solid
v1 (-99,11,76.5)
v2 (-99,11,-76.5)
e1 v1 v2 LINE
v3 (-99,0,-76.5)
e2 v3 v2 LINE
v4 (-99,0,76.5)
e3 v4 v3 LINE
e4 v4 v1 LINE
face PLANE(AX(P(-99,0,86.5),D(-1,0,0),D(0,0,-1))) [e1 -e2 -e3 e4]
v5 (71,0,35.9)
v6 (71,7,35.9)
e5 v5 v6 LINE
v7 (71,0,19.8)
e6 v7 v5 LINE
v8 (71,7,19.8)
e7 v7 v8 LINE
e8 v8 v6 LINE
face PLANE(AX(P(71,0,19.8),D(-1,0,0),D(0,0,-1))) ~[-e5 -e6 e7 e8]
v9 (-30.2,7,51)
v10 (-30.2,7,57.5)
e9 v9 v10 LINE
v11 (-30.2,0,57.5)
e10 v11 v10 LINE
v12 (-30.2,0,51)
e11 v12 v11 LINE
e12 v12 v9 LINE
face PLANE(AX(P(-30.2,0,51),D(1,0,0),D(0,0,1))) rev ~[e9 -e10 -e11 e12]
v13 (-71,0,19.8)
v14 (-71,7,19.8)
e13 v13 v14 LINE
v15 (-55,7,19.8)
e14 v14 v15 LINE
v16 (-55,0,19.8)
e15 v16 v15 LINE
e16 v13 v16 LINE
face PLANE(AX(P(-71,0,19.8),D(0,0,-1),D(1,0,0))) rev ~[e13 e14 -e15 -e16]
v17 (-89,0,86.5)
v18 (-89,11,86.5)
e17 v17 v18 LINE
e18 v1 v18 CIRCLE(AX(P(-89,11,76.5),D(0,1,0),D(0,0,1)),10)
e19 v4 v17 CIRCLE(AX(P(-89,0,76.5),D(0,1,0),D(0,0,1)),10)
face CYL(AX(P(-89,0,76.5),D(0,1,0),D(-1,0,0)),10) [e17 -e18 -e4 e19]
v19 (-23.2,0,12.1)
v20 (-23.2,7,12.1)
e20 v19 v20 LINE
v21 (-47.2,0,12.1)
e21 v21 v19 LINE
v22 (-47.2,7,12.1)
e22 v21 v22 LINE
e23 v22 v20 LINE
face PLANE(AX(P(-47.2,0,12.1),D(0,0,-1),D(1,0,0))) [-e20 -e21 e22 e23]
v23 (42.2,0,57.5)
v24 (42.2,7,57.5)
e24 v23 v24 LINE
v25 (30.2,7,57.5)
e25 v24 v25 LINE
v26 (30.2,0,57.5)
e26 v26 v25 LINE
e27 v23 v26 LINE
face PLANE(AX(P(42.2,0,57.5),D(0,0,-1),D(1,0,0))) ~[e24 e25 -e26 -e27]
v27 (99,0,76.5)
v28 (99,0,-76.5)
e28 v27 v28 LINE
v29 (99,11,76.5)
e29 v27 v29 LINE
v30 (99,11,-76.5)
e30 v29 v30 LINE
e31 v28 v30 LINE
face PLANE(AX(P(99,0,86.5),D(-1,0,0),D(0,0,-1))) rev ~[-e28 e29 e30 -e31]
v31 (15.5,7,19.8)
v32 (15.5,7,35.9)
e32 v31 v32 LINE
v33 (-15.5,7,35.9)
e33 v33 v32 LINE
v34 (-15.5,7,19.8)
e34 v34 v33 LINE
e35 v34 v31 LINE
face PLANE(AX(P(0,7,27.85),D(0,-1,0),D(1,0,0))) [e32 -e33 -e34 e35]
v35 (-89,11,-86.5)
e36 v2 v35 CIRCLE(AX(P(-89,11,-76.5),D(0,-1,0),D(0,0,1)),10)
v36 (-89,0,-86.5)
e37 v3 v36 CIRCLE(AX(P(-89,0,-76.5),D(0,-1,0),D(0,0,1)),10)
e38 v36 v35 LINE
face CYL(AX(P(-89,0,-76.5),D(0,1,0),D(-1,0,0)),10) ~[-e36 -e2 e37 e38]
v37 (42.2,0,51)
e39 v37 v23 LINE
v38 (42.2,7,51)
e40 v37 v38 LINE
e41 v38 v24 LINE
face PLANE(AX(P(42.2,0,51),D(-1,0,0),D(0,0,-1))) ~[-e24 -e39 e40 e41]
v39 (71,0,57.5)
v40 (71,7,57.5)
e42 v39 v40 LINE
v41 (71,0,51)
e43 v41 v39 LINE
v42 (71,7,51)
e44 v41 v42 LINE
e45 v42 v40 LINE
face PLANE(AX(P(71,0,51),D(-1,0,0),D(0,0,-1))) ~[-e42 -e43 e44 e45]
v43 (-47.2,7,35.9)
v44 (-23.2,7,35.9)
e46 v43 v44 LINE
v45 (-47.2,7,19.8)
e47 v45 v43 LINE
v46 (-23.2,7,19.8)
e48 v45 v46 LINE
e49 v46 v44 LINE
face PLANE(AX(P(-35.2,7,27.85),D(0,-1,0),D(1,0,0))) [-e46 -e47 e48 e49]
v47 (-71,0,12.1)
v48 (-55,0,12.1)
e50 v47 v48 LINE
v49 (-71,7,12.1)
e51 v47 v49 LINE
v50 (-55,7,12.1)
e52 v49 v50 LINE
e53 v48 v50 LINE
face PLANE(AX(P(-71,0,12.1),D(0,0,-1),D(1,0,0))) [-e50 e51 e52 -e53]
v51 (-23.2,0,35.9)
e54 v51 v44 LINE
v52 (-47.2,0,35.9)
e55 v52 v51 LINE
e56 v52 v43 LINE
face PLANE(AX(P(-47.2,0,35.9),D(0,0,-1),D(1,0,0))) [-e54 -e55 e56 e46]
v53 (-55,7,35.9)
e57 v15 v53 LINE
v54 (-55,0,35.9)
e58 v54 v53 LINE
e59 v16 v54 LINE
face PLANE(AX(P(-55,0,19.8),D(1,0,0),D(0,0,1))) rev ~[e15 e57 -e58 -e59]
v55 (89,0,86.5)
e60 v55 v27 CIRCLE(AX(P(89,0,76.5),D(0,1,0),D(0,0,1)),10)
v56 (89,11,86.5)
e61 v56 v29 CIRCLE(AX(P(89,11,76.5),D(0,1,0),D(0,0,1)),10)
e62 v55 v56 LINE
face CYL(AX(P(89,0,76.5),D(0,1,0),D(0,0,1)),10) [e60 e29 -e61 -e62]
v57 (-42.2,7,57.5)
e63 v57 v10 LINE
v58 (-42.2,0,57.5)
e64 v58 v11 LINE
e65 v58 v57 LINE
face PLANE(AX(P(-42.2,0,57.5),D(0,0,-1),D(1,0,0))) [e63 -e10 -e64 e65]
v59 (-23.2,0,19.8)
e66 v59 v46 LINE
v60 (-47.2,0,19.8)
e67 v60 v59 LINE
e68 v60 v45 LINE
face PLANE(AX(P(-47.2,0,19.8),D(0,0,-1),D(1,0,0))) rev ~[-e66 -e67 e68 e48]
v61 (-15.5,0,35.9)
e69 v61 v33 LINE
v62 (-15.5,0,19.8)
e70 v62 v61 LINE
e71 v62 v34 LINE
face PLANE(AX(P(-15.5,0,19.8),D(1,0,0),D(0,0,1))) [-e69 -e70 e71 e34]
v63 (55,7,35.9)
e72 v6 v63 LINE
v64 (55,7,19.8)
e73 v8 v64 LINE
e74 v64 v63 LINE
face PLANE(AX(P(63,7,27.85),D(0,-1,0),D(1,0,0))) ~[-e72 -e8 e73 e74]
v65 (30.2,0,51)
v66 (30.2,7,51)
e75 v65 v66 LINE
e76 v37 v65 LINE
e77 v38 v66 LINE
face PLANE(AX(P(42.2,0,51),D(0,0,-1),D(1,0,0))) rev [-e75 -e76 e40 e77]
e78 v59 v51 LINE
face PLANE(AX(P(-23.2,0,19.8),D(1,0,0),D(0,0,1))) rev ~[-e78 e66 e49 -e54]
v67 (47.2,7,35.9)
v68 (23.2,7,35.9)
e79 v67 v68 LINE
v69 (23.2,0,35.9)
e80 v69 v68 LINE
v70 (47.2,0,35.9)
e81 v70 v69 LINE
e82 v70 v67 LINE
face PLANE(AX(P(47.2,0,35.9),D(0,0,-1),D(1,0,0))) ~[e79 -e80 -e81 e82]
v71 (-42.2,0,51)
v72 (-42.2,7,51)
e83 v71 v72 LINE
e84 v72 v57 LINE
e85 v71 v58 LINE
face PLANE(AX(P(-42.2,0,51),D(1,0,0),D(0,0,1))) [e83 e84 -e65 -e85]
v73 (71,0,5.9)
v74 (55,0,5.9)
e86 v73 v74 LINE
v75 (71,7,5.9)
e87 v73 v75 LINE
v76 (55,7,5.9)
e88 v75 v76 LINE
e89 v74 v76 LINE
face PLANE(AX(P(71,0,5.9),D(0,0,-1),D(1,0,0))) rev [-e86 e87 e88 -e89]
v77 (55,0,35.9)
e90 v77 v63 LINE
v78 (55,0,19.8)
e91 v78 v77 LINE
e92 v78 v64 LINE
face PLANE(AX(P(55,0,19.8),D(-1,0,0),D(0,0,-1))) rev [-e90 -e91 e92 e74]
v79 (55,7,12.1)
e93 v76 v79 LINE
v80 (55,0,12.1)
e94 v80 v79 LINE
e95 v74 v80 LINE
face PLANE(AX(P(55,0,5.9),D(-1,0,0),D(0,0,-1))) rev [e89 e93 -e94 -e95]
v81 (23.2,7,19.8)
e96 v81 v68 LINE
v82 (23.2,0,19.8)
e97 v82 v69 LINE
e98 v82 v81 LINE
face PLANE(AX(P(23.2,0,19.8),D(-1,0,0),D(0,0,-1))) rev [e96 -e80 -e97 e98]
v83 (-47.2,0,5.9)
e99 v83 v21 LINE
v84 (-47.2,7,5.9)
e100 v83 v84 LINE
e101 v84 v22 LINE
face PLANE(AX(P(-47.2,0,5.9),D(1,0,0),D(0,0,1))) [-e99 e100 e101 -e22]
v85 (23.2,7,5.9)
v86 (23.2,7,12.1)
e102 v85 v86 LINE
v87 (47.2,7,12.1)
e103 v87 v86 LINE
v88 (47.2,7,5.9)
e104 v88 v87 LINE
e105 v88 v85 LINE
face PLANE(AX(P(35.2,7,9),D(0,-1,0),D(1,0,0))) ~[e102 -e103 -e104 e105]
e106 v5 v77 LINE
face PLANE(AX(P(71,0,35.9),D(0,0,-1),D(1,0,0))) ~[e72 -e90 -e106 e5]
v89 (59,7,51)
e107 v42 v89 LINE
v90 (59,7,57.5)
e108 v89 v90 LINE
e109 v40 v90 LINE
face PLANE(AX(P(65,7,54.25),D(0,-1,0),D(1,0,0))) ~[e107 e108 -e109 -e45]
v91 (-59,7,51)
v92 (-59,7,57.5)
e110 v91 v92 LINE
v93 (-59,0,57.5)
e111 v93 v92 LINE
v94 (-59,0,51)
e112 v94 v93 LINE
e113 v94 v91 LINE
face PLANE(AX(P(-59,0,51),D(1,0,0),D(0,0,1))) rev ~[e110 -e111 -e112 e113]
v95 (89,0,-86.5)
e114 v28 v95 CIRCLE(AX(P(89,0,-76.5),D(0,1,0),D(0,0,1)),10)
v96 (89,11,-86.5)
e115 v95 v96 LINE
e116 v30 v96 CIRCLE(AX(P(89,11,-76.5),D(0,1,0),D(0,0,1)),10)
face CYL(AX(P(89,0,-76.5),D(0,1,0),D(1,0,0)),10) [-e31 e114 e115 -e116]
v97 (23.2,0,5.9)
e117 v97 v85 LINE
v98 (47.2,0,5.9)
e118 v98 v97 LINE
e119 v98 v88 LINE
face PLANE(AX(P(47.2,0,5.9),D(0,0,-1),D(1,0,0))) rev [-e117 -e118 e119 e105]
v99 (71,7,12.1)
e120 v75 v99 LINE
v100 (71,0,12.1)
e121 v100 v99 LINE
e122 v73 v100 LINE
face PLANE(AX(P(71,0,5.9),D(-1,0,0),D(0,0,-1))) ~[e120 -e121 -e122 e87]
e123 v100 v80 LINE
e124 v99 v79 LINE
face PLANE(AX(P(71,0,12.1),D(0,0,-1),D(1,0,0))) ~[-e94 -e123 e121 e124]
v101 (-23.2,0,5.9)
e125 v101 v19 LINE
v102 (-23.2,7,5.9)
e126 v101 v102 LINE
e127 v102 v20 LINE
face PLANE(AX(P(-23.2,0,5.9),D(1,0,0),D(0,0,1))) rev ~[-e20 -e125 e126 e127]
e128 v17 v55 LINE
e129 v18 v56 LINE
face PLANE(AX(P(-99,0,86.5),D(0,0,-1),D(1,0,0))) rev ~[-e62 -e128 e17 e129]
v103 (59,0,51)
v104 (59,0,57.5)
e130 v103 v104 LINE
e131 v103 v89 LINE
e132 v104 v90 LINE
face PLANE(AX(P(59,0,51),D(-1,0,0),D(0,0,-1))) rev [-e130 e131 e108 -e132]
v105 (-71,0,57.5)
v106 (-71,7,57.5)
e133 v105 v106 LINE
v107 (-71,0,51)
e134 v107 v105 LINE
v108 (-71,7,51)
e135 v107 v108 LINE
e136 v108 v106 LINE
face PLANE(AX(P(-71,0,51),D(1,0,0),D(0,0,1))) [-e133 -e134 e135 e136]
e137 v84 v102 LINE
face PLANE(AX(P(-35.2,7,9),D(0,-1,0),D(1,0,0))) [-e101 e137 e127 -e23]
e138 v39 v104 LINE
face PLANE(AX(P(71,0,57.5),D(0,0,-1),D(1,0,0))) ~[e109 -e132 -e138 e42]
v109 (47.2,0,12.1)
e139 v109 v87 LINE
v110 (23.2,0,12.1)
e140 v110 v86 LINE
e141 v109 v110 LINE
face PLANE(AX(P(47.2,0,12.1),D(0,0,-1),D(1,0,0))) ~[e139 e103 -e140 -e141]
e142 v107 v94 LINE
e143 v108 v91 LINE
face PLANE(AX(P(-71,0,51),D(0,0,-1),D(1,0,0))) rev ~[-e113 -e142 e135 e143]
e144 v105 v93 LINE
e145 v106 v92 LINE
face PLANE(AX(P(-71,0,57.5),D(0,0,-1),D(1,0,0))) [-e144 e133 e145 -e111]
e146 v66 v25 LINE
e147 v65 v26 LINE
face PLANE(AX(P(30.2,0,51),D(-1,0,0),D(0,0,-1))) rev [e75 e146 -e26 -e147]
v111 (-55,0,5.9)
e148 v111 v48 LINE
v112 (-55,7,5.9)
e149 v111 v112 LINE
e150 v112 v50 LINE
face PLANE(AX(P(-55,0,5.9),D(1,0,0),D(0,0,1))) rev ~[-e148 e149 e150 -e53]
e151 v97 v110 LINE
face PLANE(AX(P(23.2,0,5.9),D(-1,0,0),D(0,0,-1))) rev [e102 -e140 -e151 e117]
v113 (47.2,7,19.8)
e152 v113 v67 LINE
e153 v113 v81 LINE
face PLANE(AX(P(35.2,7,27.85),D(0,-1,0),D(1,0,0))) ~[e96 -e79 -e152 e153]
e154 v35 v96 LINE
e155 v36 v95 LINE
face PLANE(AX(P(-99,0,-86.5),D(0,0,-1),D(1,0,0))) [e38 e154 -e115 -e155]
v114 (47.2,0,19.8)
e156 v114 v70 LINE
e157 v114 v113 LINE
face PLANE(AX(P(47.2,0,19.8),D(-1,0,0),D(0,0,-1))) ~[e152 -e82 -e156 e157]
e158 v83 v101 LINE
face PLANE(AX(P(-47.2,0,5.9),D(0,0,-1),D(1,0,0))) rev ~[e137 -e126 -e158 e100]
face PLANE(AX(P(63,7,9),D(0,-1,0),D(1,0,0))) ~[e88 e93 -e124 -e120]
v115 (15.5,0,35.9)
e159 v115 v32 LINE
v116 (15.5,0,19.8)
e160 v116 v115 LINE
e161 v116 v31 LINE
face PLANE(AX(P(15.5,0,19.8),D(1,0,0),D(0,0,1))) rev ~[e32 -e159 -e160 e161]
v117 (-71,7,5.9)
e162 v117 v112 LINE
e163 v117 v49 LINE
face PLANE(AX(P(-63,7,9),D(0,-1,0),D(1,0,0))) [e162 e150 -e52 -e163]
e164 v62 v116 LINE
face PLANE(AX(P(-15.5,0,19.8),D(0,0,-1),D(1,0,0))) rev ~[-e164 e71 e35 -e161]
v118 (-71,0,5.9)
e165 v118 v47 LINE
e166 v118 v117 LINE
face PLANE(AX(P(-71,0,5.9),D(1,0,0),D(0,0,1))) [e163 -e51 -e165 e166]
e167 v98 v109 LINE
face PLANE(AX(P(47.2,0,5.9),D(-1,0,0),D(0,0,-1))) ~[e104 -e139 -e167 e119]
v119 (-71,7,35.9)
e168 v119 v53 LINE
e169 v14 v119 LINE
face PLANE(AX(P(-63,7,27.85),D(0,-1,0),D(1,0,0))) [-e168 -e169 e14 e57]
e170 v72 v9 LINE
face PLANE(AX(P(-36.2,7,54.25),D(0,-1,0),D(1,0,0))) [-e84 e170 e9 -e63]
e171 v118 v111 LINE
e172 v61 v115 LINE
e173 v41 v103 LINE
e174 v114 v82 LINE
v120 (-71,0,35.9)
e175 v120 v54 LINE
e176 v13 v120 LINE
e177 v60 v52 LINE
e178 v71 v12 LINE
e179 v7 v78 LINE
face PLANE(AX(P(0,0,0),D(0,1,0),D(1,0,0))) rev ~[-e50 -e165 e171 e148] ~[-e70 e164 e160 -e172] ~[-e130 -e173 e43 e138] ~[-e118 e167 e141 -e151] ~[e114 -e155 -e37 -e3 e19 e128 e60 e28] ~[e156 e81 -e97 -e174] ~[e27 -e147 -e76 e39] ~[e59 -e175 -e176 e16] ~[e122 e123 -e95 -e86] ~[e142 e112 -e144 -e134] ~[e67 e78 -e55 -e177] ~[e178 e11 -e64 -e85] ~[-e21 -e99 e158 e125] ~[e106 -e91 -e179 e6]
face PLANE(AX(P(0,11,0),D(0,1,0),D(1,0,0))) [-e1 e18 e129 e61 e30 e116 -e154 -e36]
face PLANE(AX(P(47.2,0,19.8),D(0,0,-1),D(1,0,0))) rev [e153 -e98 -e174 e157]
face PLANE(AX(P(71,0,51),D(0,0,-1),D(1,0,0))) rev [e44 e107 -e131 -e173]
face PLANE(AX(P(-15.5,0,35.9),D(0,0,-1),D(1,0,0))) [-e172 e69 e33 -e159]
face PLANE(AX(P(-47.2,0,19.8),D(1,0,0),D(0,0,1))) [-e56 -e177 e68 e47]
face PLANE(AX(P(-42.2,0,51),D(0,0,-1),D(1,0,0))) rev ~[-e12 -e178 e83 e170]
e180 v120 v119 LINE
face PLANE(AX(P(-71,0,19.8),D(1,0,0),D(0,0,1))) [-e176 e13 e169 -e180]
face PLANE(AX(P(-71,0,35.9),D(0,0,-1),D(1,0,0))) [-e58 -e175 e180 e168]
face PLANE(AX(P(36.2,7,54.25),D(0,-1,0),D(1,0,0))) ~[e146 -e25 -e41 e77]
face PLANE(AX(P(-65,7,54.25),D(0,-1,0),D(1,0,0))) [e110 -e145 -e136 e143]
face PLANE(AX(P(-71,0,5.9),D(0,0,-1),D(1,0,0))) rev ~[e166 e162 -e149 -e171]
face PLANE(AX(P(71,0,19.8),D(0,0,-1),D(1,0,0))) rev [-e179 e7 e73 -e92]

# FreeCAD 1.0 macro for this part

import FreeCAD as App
import Part
import Sketcher
Q = App.Units.Quantity


def edges_at(feature, points):
    """Names of the edges that pass closest to the given points."""
    edges = feature.Shape.Edges
    near = lambda p: min(range(len(edges)), key=lambda i: edges[i].distToShape(Part.Vertex(*p))[0])
    return sorted({f"Edge{near(p) + 1}" for p in points})

doc = App.newDocument("Part")
params = doc.addObject("Spreadsheet::Sheet", "Params")
for row, (alias, value) in enumerate([
    ("sketch1_width", "198 mm"),
    ("sketch1_height", "173 mm"),
    ("pad1_length", "11 mm"),
    ("fillet_radius", "10 mm"),
    ("sketch2_width", "12 mm"),
    ("sketch2_width2", "16 mm"),
    ("sketch2_width3", "24 mm"),
    ("sketch2_width4", "31 mm"),
    ("sketch2_height", "6.5 mm"),
    ("pocket1_length", "7 mm"),
], start=1):
    params.set(f"A{row}", alias)
    params.set(f"B{row}", "=" + value)
    params.setAlias(f"B{row}", alias)

body = doc.addObject("PartDesign::Body", "Body")

# Sketch on XZ plane
sketch1 = body.newObject("Sketcher::SketchObject", "Sketch")
sketch1.AttachmentSupport = (doc.getObject("XZ_Plane"), [""])
sketch1.MapMode = "FlatFace"
sketch1.addGeometry([
    Part.LineSegment(App.Vector(-99, -86, 0), App.Vector(-99, 86, 0)),
    Part.LineSegment(App.Vector(-99, 86, 0), App.Vector(99, 86, 0)),
    Part.LineSegment(App.Vector(99, 86, 0), App.Vector(99, -86, 0)),
    Part.LineSegment(App.Vector(99, -86, 0), App.Vector(-99, -86, 0)),
], False)
sketch1.addConstraint([
    Sketcher.Constraint("Coincident", 0, 2, 1, 1),
    Sketcher.Constraint("Coincident", 1, 2, 2, 1),
    Sketcher.Constraint("Coincident", 2, 2, 3, 1),
    Sketcher.Constraint("Coincident", 3, 2, 0, 1),
    Sketcher.Constraint("Vertical", 0),
    Sketcher.Constraint("Horizontal", 1),
    Sketcher.Constraint("Vertical", 2),
    Sketcher.Constraint("Horizontal", 3),
    Sketcher.Constraint("Symmetric", 0, 2, 2, 2, -1, 1),
    Sketcher.Constraint("DistanceX", 1, 1, 1, 2, Q("198 mm")),
    Sketcher.Constraint("DistanceY", 0, 1, 0, 2, Q("173 mm")),
])
sketch1.setExpression("Constraints[9]", "Params.sketch1_width")
sketch1.setExpression("Constraints[10]", "Params.sketch1_height")
pad1 = body.newObject("PartDesign::Pad", "Pad")
pad1.Profile = sketch1
pad1.setExpression("Length", "Params.pad1_length")
pad1.Reversed = True
doc.recompute()

fillet = body.newObject("PartDesign::Fillet", "Fillet")
fillet.Base = (pad1, edges_at(pad1, [
    (-99, 5.5, -86.5),
    (99, 5.5, -86.5),
    (99, 5.5, 86.5),
    (-99, 5.5, 86.5),
]))
fillet.setExpression("Radius", "Params.fillet_radius")

# Sketch on XZ plane
sketch2 = body.newObject("Sketcher::SketchObject", "Sketch001")
sketch2.AttachmentSupport = (doc.getObject("XZ_Plane"), [""])
sketch2.MapMode = "FlatFace"
sketch2.addGeometry([
    Part.LineSegment(App.Vector(-71, 58, 0), App.Vector(-71, 51, 0)),  # 0
    Part.LineSegment(App.Vector(-71, 51, 0), App.Vector(-59, 51, 0)),  # 1
    Part.LineSegment(App.Vector(-59, 51, 0), App.Vector(-59, 58, 0)),  # 2
    Part.LineSegment(App.Vector(-59, 58, 0), App.Vector(-71, 58, 0)),  # 3
    Part.LineSegment(App.Vector(-42, 58, 0), App.Vector(-42, 51, 0)),  # 4
    Part.LineSegment(App.Vector(-42, 51, 0), App.Vector(-30, 51, 0)),  # 5
    Part.LineSegment(App.Vector(-30, 51, 0), App.Vector(-30, 58, 0)),  # 6
    Part.LineSegment(App.Vector(-30, 58, 0), App.Vector(-42, 58, 0)),  # 7
    Part.LineSegment(App.Vector(-71, 36, 0), App.Vector(-71, 20, 0)),  # 8
    Part.LineSegment(App.Vector(-71, 20, 0), App.Vector(-55, 20, 0)),  # 9
    Part.LineSegment(App.Vector(-55, 20, 0), App.Vector(-55, 36, 0)),  # 10
    Part.LineSegment(App.Vector(-55, 36, 0), App.Vector(-71, 36, 0)),  # 11
    Part.LineSegment(App.Vector(-71, 12, 0), App.Vector(-71, 6, 0)),  # 12
    Part.LineSegment(App.Vector(-71, 6, 0), App.Vector(-55, 6, 0)),  # 13
    Part.LineSegment(App.Vector(-55, 6, 0), App.Vector(-55, 12, 0)),  # 14
    Part.LineSegment(App.Vector(-55, 12, 0), App.Vector(-71, 12, 0)),  # 15
    Part.LineSegment(App.Vector(-47, 36, 0), App.Vector(-47, 20, 0)),  # 16
    Part.LineSegment(App.Vector(-47, 20, 0), App.Vector(-23, 20, 0)),  # 17
    Part.LineSegment(App.Vector(-23, 20, 0), App.Vector(-23, 36, 0)),  # 18
    Part.LineSegment(App.Vector(-23, 36, 0), App.Vector(-47, 36, 0)),  # 19
    Part.LineSegment(App.Vector(-47, 12, 0), App.Vector(-47, 6, 0)),  # 20
    Part.LineSegment(App.Vector(-47, 6, 0), App.Vector(-23, 6, 0)),  # 21
    Part.LineSegment(App.Vector(-23, 6, 0), App.Vector(-23, 12, 0)),  # 22
    Part.LineSegment(App.Vector(-23, 12, 0), App.Vector(-47, 12, 0)),  # 23
    Part.LineSegment(App.Vector(-16, 36, 0), App.Vector(-16, 20, 0)),  # 24
    Part.LineSegment(App.Vector(-16, 20, 0), App.Vector(16, 20, 0)),  # 25
    Part.LineSegment(App.Vector(16, 20, 0), App.Vector(16, 36, 0)),  # 26
    Part.LineSegment(App.Vector(16, 36, 0), App.Vector(-16, 36, 0)),  # 27
], False)
sketch2.addConstraint([
    Sketcher.Constraint("Coincident", 0, 2, 1, 1),
    Sketcher.Constraint("Coincident", 1, 2, 2, 1),
    Sketcher.Constraint("Coincident", 2, 2, 3, 1),
    Sketcher.Constraint("Coincident", 3, 2, 0, 1),
    Sketcher.Constraint("Coincident", 4, 2, 5, 1),
    Sketcher.Constraint("Coincident", 5, 2, 6, 1),
    Sketcher.Constraint("Coincident", 6, 2, 7, 1),
    Sketcher.Constraint("Coincident", 7, 2, 4, 1),
    Sketcher.Constraint("Coincident", 8, 2, 9, 1),
    Sketcher.Constraint("Coincident", 9, 2, 10, 1),
    Sketcher.Constraint("Coincident", 10, 2, 11, 1),
    Sketcher.Constraint("Coincident", 11, 2, 8, 1),
    Sketcher.Constraint("Coincident", 12, 2, 13, 1),
    Sketcher.Constraint("Coincident", 13, 2, 14, 1),
    Sketcher.Constraint("Coincident", 14, 2, 15, 1),
    Sketcher.Constraint("Coincident", 15, 2, 12, 1),
    Sketcher.Constraint("Coincident", 16, 2, 17, 1),
    Sketcher.Constraint("Coincident", 17, 2, 18, 1),
    Sketcher.Constraint("Coincident", 18, 2, 19, 1),
    Sketcher.Constraint("Coincident", 19, 2, 16, 1),
    Sketcher.Constraint("Coincident", 20, 2, 21, 1),
    Sketcher.Constraint("Coincident", 21, 2, 22, 1),
    Sketcher.Constraint("Coincident", 22, 2, 23, 1),
    Sketcher.Constraint("Coincident", 23, 2, 20, 1),
    Sketcher.Constraint("Coincident", 24, 2, 25, 1),
    Sketcher.Constraint("Coincident", 25, 2, 26, 1),
    Sketcher.Constraint("Coincident", 26, 2, 27, 1),
    Sketcher.Constraint("Coincident", 27, 2, 24, 1),
    Sketcher.Constraint("Vertical", 0),
    Sketcher.Constraint("Horizontal", 1),
    Sketcher.Constraint("Vertical", 2),
    Sketcher.Constraint("Horizontal", 3),
    Sketcher.Constraint("Vertical", 4),
    Sketcher.Constraint("Horizontal", 5),
    Sketcher.Constraint("Vertical", 6),
    Sketcher.Constraint("Horizontal", 7),
    Sketcher.Constraint("Vertical", 8),
    Sketcher.Constraint("Horizontal", 9),
    Sketcher.Constraint("Vertical", 10),
    Sketcher.Constraint("Horizontal", 11),
    Sketcher.Constraint("Vertical", 12),
    Sketcher.Constraint("Horizontal", 13),
    Sketcher.Constraint("Vertical", 14),
    Sketcher.Constraint("Horizontal", 15),
    Sketcher.Constraint("Vertical", 16),
    Sketcher.Constraint("Horizontal", 17),
    Sketcher.Constraint("Vertical", 18),
    Sketcher.Constraint("Horizontal", 19),
    Sketcher.Constraint("Vertical", 20),
    Sketcher.Constraint("Horizontal", 21),
    Sketcher.Constraint("Vertical", 22),
    Sketcher.Constraint("Horizontal", 23),
    Sketcher.Constraint("Vertical", 24),
    Sketcher.Constraint("Horizontal", 25),
    Sketcher.Constraint("Vertical", 26),
    Sketcher.Constraint("Horizontal", 27),
    Sketcher.Constraint("Horizontal", 1, 2, 4, 2),
    Sketcher.Constraint("Horizontal", 3, 2, 6, 2),
    Sketcher.Constraint("Horizontal", 9, 2, 16, 2),
    Sketcher.Constraint("Horizontal", 11, 2, 18, 2),
    Sketcher.Constraint("Horizontal", 13, 2, 20, 2),
    Sketcher.Constraint("Horizontal", 15, 2, 22, 2),
    Sketcher.Constraint("Horizontal", 17, 2, 24, 2),
    Sketcher.Constraint("Horizontal", 19, 2, 26, 2),
    Sketcher.Constraint("Vertical", 3, 2, 8, 2),
    Sketcher.Constraint("Vertical", 11, 2, 12, 2),
    Sketcher.Constraint("Vertical", 10, 2, 13, 2),
    Sketcher.Constraint("Vertical", 19, 2, 20, 2),
    Sketcher.Constraint("Vertical", 18, 2, 21, 2),
    Sketcher.Constraint("Equal", 3, 5),
    Sketcher.Constraint("DistanceX", 1, 1, 1, 2, Q("12 mm")),
    Sketcher.Constraint("DistanceX", 9, 1, 9, 2, Q("16 mm")),
    Sketcher.Constraint("DistanceX", 17, 1, 17, 2, Q("24 mm")),
    Sketcher.Constraint("DistanceX", 25, 1, 25, 2, Q("31 mm")),
    Sketcher.Constraint("DistanceY", 0, 2, 0, 1, Q("6.5 mm")),
    Sketcher.Constraint("DistanceY", 8, 2, 8, 1, Q("16.1 mm")),
    Sketcher.Constraint("DistanceY", 12, 2, 12, 1, Q("6.2 mm")),
    Sketcher.Constraint("DistanceX", 0, 2, -1, 1, Q("71 mm")),
    Sketcher.Constraint("DistanceY", -1, 1, 0, 2, Q("51 mm")),
    Sketcher.Constraint("DistanceY", 12, 2, 11, 2, Q("30 mm")),
    Sketcher.Constraint("DistanceX", 5, 2, 17, 2, Q("7 mm")),
    Sketcher.Constraint("DistanceX", 4, 2, -1, 1, Q("42.2 mm")),
    Sketcher.Constraint("DistanceY", -1, 1, 8, 2, Q("19.8 mm")),
    Sketcher.Constraint("DistanceX", 24, 2, -1, 1, Q("15.5 mm")),
])
sketch2.setExpression("Constraints[70]", "Params.sketch2_width")
sketch2.setExpression("Constraints[71]", "Params.sketch2_width2")
sketch2.setExpression("Constraints[72]", "Params.sketch2_width3")
sketch2.setExpression("Constraints[73]", "Params.sketch2_width4")
sketch2.setExpression("Constraints[74]", "Params.sketch2_height")
pocket1 = body.newObject("PartDesign::Pocket", "Pocket")
pocket1.Profile = sketch2
pocket1.setExpression("Length", "Params.pocket1_length")
doc.recompute()

mirrored = body.newObject("PartDesign::Mirrored", "Mirrored")
mirrored.Originals = [pocket1]
mirrored.MirrorPlane = (doc.getObject("YZ_Plane"), [""])
body.Tip = mirrored

doc.recompute()
